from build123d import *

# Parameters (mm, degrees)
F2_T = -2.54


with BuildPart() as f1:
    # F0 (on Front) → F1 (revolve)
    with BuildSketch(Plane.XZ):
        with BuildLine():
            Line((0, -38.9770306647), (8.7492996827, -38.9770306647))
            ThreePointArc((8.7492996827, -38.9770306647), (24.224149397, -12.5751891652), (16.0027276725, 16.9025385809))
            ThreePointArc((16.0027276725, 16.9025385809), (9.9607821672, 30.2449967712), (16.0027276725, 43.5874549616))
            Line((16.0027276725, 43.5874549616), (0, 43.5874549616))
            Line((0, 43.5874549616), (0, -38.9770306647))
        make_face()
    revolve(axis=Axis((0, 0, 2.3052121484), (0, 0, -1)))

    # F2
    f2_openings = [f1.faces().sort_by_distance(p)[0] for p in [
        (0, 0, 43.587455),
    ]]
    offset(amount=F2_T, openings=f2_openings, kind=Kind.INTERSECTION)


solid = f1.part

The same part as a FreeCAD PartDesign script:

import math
import FreeCAD as App
import Part
import Sketcher
Q = App.Units.Quantity


def faces_at(feature, points):
    """Names of the faces that lie closest to the given points."""
    faces = feature.Shape.Faces
    near = lambda p: min(range(len(faces)), key=lambda i: faces[i].distToShape(Part.Vertex(*p))[0])
    return sorted({f"Face{near(p) + 1}" for p in points})

doc = App.newDocument("Part")
body = doc.addObject("PartDesign::Body", "Body")

sketch1 = body.newObject("Sketcher::SketchObject", "Sketch")
sketch1.AttachmentSupport = (doc.getObject("XZ_Plane"), [""])
sketch1.MapMode = "FlatFace"
sketch1.addGeometry([
    Part.LineSegment(App.Vector(0, -39, 0), App.Vector(9, -39, 0)),
    Part.ArcOfCircle(Part.Circle(App.Vector(-15, -8, 0), App.Vector(0, 0, 1), 39), math.radians(-53), math.radians(39)),
    Part.ArcOfCircle(Part.Circle(App.Vector(28, 30, 0), App.Vector(0, 0, 1), 18), math.radians(131), math.radians(229)),
    Part.LineSegment(App.Vector(16, 44, 0), App.Vector(0, 44, 0)),
    Part.LineSegment(App.Vector(0, 44, 0), App.Vector(0, -39, 0)),
], False)
sketch1.addConstraint([
    Sketcher.Constraint("Coincident", 0, 2, 1, 1),
    Sketcher.Constraint("Coincident", 1, 2, 2, 2),
    Sketcher.Constraint("Coincident", 2, 1, 3, 1),
    Sketcher.Constraint("Coincident", 3, 2, 4, 1),
    Sketcher.Constraint("Coincident", 4, 2, 0, 1),
    Sketcher.Constraint("Horizontal", 0),
    Sketcher.Constraint("Horizontal", 3),
    Sketcher.Constraint("Vertical", 4),
    Sketcher.Constraint("PointOnObject", 3, 2, -2),
    Sketcher.Constraint("Vertical", 1, 2, 2, 1),
    Sketcher.Constraint("Radius", 2, 17.753081),
    Sketcher.Constraint("DistanceX", 0, 1, 0, 2, 8.7493),
    Sketcher.Constraint("Radius", 1, 39.193366),
    Sketcher.Constraint("DistanceX", 3, 2, 3, 1, 16.002728),
    Sketcher.Constraint("DistanceY", 4, 2, 4, 1, 82.564486),
    Sketcher.Constraint("DistanceX", 1, 3, -1, 1, 14.643142),
    Sketcher.Constraint("DistanceY", 0, 2, -1, 1, 38.977031),
])
revolution = body.newObject("PartDesign::Revolution", "Revolution")
revolution.Profile = sketch1
revolution.ReferenceAxis = (sketch1, ["V_Axis"])
revolution.Angle = 360
doc.recompute()

thickness = body.newObject("PartDesign::Thickness", "Thickness")
thickness.Base = (revolution, faces_at(revolution, [(0, 0, 43.587)]))
thickness.Value = Q("0.1 in")
thickness.Reversed = True
thickness.Join = "Intersection"

doc.recompute()
